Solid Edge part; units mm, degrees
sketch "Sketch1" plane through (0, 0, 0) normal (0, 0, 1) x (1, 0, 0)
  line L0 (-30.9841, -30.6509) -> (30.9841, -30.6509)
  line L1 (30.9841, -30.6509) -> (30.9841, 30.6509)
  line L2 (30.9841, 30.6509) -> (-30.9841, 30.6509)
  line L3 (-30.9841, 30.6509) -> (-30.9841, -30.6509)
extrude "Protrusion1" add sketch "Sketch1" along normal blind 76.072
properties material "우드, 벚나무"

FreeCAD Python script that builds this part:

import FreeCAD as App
import Part
import Sketcher
Q = App.Units.Quantity

doc = App.newDocument("Part")
body = doc.addObject("PartDesign::Body", "Body")

# Sketch on XY plane
sketch1 = body.newObject("Sketcher::SketchObject", "Sketch")
sketch1.AttachmentSupport = (doc.getObject("XY_Plane"), [""])
sketch1.MapMode = "FlatFace"
sketch1.addGeometry(Part.LineSegment(App.Vector(-30.9841, 30.6509, 0), App.Vector(-30.9841, -30.6509, 0)), False)
sketch1.addGeometry(Part.LineSegment(App.Vector(-30.9841, -30.6509, 0), App.Vector(30.9841, -30.6509, 0)), False)
sketch1.addGeometry(Part.LineSegment(App.Vector(30.9841, -30.6509, 0), App.Vector(30.9841, 30.6509, 0)), False)
sketch1.addGeometry(Part.LineSegment(App.Vector(30.9841, 30.6509, 0), App.Vector(-30.9841, 30.6509, 0)), False)
sketch1.addConstraint(Sketcher.Constraint("Coincident", 0, 2, 1, 1))
sketch1.addConstraint(Sketcher.Constraint("Coincident", 1, 2, 2, 1))
sketch1.addConstraint(Sketcher.Constraint("Coincident", 2, 2, 3, 1))
sketch1.addConstraint(Sketcher.Constraint("Coincident", 3, 2, 0, 1))
sketch1.addConstraint(Sketcher.Constraint("Vertical", 0))
sketch1.addConstraint(Sketcher.Constraint("Horizontal", 1))
sketch1.addConstraint(Sketcher.Constraint("Vertical", 2))
sketch1.addConstraint(Sketcher.Constraint("Horizontal", 3))
sketch1.addConstraint(Sketcher.Constraint("Symmetric", 0, 2, 2, 2, -1, 1))
sketch1.addConstraint(Sketcher.Constraint("DistanceX", 1, 1, 1, 2, Q("61.9682 mm")))
sketch1.addConstraint(Sketcher.Constraint("DistanceY", 0, 2, 0, 1, Q("61.3018 mm")))
pad1 = body.newObject("PartDesign::Pad", "Pad")
pad1.Profile = sketch1
pad1.Length = 76.072

doc.recompute()
